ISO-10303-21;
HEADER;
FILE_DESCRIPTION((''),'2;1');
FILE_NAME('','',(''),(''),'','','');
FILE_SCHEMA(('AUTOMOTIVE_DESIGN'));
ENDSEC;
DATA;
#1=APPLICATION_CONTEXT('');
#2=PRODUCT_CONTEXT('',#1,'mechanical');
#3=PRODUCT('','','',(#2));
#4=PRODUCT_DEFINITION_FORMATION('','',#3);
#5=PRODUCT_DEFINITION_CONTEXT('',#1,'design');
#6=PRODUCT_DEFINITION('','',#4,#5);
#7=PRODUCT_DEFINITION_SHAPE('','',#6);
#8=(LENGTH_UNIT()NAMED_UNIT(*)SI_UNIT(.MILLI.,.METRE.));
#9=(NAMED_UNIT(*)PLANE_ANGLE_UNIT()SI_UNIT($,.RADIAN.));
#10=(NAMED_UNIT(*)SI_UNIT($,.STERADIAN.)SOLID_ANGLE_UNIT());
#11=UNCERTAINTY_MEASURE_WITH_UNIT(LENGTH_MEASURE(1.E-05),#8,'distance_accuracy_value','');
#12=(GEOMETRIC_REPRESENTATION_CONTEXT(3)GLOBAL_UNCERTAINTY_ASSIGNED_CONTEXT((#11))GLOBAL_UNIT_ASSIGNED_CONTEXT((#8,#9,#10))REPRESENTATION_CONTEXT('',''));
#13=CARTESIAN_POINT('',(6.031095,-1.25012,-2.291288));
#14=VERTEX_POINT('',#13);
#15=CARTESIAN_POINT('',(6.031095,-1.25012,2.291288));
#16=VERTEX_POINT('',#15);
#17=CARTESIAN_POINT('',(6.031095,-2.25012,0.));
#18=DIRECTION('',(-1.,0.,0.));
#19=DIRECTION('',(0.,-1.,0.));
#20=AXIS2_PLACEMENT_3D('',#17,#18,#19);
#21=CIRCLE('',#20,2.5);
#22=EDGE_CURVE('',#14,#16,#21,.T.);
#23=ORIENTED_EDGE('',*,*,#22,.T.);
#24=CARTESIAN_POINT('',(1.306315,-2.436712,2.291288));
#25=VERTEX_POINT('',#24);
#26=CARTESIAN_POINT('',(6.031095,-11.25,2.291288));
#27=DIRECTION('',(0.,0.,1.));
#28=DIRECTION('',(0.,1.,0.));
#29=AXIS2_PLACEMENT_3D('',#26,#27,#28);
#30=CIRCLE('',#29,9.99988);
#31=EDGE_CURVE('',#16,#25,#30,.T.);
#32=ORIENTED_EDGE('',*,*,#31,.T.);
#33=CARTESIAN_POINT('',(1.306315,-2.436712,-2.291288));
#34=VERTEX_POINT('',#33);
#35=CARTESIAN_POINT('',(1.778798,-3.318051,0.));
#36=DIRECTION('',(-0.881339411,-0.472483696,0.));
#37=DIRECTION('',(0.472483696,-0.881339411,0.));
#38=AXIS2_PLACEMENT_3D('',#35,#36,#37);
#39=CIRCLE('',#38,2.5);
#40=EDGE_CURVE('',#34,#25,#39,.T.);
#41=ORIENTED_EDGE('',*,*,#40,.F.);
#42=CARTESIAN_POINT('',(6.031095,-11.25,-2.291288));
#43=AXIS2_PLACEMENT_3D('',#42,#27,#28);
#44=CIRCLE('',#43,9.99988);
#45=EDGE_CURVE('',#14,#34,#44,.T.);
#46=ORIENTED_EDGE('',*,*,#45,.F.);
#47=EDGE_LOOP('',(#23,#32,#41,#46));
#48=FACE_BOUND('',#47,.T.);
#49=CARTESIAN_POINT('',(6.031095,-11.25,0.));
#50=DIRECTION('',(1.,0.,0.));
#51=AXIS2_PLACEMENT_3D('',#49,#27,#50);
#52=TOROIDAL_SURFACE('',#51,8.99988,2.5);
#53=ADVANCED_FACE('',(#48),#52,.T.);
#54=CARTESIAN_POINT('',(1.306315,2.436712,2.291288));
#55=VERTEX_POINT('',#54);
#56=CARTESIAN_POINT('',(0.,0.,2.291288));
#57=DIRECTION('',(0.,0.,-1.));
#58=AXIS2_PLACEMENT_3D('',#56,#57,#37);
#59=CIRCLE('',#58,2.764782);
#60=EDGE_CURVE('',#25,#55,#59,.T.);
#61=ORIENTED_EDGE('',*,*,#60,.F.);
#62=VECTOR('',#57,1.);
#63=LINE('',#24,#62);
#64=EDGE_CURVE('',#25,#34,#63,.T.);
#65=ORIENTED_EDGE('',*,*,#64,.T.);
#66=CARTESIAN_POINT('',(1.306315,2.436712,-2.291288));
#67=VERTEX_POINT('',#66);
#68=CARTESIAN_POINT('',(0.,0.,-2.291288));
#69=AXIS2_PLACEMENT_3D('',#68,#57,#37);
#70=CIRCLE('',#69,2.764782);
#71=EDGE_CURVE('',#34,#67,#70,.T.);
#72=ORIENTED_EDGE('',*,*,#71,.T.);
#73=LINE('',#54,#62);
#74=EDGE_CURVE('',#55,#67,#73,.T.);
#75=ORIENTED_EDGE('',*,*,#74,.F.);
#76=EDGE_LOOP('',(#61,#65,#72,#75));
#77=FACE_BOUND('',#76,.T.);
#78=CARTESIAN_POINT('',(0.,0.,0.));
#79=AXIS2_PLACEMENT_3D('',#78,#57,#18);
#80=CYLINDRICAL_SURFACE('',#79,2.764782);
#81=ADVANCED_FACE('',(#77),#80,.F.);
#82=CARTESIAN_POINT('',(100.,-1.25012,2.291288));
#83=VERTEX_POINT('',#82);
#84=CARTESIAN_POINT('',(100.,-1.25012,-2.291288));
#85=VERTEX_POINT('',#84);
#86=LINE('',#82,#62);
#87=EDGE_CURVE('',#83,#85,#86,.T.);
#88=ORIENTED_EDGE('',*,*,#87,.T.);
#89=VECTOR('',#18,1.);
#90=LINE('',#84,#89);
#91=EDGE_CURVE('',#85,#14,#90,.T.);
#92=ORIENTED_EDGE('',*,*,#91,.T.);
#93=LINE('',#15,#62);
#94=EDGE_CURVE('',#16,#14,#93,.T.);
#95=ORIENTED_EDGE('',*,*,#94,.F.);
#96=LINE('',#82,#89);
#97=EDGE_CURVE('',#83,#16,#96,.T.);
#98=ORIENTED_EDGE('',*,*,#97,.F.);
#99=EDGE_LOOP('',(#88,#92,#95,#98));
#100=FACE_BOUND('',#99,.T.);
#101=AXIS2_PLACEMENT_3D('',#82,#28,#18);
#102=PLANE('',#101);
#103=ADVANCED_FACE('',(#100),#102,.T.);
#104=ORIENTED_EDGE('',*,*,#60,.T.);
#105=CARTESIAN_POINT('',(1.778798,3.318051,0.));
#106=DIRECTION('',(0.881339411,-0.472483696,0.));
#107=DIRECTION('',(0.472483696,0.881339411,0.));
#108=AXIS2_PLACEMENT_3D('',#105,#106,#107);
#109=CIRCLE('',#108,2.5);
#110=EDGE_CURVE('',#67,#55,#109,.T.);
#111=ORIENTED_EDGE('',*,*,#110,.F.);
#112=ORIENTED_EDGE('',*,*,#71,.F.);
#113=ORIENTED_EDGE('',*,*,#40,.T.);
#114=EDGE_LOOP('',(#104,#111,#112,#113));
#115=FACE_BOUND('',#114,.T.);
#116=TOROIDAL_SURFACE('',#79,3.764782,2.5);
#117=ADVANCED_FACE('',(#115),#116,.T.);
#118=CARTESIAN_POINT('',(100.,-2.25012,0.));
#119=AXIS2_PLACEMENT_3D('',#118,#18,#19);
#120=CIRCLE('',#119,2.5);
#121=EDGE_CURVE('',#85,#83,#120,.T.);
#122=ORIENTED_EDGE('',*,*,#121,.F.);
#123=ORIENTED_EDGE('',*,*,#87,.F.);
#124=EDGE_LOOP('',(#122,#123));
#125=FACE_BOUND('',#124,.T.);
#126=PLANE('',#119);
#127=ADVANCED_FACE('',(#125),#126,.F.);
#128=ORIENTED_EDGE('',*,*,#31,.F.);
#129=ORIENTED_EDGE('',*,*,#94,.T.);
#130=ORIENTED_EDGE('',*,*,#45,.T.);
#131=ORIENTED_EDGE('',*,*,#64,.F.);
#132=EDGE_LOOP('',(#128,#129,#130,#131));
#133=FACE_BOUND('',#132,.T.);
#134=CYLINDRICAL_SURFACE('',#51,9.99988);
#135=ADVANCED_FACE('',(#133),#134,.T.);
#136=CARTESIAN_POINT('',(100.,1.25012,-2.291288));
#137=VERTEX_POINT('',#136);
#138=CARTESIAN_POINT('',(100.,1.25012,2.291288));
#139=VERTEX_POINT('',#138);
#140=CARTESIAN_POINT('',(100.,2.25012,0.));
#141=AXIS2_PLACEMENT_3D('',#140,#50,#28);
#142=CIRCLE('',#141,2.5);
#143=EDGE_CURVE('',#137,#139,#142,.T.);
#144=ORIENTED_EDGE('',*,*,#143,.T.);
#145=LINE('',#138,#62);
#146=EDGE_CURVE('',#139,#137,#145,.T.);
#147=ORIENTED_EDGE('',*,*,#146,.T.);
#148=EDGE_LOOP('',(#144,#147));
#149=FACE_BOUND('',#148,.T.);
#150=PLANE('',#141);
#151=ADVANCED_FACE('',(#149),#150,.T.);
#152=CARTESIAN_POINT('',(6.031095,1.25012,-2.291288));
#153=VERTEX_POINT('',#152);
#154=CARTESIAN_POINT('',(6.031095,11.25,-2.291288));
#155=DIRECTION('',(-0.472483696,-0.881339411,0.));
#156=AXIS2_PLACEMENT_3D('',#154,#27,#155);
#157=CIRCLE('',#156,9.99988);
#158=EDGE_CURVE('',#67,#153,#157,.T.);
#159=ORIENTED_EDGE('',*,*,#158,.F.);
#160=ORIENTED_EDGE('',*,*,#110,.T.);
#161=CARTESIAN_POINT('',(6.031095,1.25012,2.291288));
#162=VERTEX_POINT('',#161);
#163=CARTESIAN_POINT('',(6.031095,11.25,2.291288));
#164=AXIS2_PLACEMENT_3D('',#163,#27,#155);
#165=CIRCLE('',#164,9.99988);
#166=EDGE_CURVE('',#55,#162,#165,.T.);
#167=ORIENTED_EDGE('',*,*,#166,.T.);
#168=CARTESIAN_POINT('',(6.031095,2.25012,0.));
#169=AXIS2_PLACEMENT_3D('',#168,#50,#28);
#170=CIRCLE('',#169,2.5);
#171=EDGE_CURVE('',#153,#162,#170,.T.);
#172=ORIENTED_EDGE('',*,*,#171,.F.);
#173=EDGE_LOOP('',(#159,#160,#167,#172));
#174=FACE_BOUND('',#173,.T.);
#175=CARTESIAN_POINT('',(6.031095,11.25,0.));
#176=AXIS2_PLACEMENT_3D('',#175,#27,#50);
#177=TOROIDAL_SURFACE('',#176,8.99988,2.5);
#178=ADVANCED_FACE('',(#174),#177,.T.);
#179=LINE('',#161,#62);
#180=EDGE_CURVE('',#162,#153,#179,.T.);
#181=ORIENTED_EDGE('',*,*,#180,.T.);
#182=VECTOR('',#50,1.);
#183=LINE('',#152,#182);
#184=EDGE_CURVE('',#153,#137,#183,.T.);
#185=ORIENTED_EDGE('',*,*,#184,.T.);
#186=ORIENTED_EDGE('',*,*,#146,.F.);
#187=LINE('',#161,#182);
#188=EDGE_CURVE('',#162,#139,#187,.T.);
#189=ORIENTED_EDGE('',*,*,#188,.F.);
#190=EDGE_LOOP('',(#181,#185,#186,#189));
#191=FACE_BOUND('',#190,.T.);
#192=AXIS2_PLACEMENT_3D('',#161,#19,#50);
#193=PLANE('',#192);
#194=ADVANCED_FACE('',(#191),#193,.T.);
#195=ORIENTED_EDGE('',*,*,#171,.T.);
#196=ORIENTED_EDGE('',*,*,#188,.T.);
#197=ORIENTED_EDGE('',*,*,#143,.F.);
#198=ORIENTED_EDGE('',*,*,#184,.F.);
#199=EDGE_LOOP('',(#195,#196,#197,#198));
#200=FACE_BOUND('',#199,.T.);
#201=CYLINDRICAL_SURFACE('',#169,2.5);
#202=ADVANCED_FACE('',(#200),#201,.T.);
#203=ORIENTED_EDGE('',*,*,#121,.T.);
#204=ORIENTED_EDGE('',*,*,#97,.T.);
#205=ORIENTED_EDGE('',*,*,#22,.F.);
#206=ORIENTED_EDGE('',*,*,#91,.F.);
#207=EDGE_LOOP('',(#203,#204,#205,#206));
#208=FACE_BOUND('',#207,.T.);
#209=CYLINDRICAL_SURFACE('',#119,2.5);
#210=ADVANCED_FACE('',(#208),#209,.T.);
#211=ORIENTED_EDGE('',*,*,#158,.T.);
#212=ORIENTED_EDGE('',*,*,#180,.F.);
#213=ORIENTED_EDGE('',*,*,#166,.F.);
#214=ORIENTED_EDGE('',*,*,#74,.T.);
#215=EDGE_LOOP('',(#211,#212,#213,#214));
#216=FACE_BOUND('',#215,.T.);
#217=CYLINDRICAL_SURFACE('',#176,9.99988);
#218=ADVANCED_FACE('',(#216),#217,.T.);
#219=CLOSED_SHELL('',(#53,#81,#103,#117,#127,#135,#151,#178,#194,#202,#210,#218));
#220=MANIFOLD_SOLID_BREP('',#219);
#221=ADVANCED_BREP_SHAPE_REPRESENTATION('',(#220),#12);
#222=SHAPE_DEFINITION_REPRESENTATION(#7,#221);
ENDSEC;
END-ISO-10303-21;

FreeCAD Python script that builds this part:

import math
import FreeCAD as App
import Part
import Sketcher

V = App.Vector

doc = App.newDocument("Part")
params = doc.addObject("Spreadsheet::Sheet", "Params")
for row, (alias, value) in enumerate([
    ("sketch1_radius", "2.5 mm"),
    ("sketch2_radius", "10 mm"),
], start=1):
    params.set(f"A{row}", alias)
    params.set(f"B{row}", "=" + value)
    params.setAlias(f"B{row}", alias)

body = doc.addObject("PartDesign::Body", "Body")

# Sketch on YZ plane
sketch1 = body.newObject("Sketcher::SketchObject", "Sketch")
sketch1.AttachmentSupport = (doc.getObject("YZ_Plane"), [""])
sketch1.MapMode = "FlatFace"
sketch1.AttachmentOffset = App.Placement(V(0, 0, 100), App.Rotation())
sketch1.addGeometry([
    Part.LineSegment(V(1.3, 2.3, 0), V(1.3, -2.3, 0)),
    Part.ArcOfCircle(Part.Circle(V(2.3, 0, 0), V(0, 0, 1), 2.5), math.radians(-114), math.radians(114)),
], False)
sketch1.addConstraint([
    Sketcher.Constraint("Coincident", 0, 1, 1, 2),
    Sketcher.Constraint("Coincident", 1, 1, 0, 2),
    Sketcher.Constraint("Vertical", 0),
    Sketcher.Constraint("PointOnObject", 1, 3, -1),
    Sketcher.Constraint("Radius", 1, 2.5),
    Sketcher.Constraint("DistanceX", 0, 1, 1, 3, 1.0),
    Sketcher.Constraint("DistanceX", -1, 1, 1, 3, 2.25012),
])
sketch1.setExpression("Constraints[4]", "Params.sketch1_radius")

# Sketch on XY plane
sketch2 = body.newObject("Sketcher::SketchObject", "Sketch001")
sketch2.AttachmentSupport = (doc.getObject("XY_Plane"), [""])
sketch2.MapMode = "FlatFace"
sketch2.addGeometry([
    Part.LineSegment(V(100, 1.2, 0), V(6, 1.2, 0)),  # 0
    Part.ArcOfCircle(Part.Circle(V(6, 11.3, 0), V(0, 0, 1), 10), math.radians(-118), math.radians(-90)),  # 1
    Part.ArcOfCircle(Part.Circle(V(0, 0, 0), V(0, 0, 1), 2.8), math.radians(62), math.radians(298)),  # 2
    Part.ArcOfCircle(Part.Circle(V(6, -11.3, 0), V(0, 0, 1), 10), math.radians(90), math.radians(118)),  # 3
    Part.LineSegment(V(6, -1.2, 0), V(100, -1.2, 0)),  # 4
], False)
sketch2.addConstraint([
    Sketcher.Constraint("Tangent", 0, 2, 1, 2),
    Sketcher.Constraint("Tangent", 1, 1, 2, 1),
    Sketcher.Constraint("Tangent", 2, 2, 3, 2),
    Sketcher.Constraint("Tangent", 3, 1, 4, 1),
    Sketcher.Constraint("Horizontal", 0),
    Sketcher.Constraint("Horizontal", 4),
    Sketcher.Constraint("Coincident", 2, 3, -1, 1),
    Sketcher.Constraint("Equal", 1, 3),
    Sketcher.Constraint("Symmetric", 0, 1, 4, 2, -1),
    Sketcher.Constraint("Radius", 1, 10.0),
    Sketcher.Constraint("DistanceX", -1, 1, 0, 1, 100.0),
    Sketcher.Constraint("DistanceY", 3, 3, 1, 3, 22.5),
    Sketcher.Constraint("Radius", 2, 2.764662),
])
sketch2.setExpression("Constraints[9]", "Params.sketch2_radius")
doc.recompute()

additivepipe = body.newObject("PartDesign::AdditivePipe", "AdditivePipe")
additivepipe.Profile = sketch1
additivepipe.Spine = (sketch2, ["Edge1", "Edge2", "Edge3", "Edge4", "Edge5"])

doc.recompute()
